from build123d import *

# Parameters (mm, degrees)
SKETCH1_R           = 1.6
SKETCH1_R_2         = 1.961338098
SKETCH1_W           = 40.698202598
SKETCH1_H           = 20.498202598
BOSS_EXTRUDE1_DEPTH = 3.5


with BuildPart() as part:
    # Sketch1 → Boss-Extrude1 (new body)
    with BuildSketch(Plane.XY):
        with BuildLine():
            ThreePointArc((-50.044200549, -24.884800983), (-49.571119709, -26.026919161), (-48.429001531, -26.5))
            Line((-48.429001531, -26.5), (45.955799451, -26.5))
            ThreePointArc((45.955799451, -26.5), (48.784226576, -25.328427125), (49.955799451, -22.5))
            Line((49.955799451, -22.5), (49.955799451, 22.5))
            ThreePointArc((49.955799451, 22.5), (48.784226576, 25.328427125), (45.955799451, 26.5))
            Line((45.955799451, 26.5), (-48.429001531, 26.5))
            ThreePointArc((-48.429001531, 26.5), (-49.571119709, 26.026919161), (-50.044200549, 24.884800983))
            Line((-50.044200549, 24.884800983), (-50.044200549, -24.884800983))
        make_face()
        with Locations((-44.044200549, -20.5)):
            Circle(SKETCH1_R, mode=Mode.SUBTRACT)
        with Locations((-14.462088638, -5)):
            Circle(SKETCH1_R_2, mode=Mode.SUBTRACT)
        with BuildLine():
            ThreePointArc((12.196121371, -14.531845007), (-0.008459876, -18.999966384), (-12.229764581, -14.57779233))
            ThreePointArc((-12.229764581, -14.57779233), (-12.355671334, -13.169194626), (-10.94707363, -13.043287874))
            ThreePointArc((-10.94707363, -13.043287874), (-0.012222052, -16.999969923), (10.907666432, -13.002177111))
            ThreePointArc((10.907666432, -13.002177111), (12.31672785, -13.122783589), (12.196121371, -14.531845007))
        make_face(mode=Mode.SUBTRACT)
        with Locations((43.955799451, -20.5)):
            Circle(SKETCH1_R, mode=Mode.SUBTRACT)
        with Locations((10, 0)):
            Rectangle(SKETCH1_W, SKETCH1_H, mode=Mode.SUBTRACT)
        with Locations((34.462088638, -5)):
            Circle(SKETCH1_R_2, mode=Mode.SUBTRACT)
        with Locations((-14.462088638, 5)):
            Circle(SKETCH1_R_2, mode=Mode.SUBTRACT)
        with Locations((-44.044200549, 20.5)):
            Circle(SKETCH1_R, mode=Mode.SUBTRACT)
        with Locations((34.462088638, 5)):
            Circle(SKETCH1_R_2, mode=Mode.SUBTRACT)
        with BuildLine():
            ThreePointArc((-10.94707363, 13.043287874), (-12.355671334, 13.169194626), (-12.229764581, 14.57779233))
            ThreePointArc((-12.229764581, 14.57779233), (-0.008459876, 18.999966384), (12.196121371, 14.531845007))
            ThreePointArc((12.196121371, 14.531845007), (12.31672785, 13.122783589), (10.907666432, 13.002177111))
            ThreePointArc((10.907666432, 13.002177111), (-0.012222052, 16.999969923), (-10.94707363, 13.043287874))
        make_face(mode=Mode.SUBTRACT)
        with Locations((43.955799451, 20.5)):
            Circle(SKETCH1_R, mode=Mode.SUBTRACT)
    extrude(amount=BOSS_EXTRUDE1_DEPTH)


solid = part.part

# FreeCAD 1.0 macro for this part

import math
import FreeCAD as App
import Part
import Sketcher
Q = App.Units.Quantity

doc = App.newDocument("Part")
params = doc.addObject("Spreadsheet::Sheet", "Params")
for row, (alias, value) in enumerate([
    ("sketch1_radius", "4 mm"),
    ("sketch1_radius2", "1 mm"),
    ("sketch1_radius3", "19 mm"),
    ("sketch1_diameter", "3.2 mm"),
    ("sketch1_height", "45 mm"),
    ("pad1_length", "3.5 mm"),
], start=1):
    params.set(f"A{row}", alias)
    params.set(f"B{row}", "=" + value)
    params.setAlias(f"B{row}", alias)

body = doc.addObject("PartDesign::Body", "Body")

sketch1 = body.newObject("Sketcher::SketchObject", "Sketch")
sketch1.AttachmentSupport = (doc.getObject("XY_Plane"), [""])
sketch1.MapMode = "FlatFace"
sketch1.addGeometry([
    Part.ArcOfCircle(Part.Circle(App.Vector(-48.4, -24.9, 0), App.Vector(0, 0, 1), 1.6), math.radians(-180), math.radians(-90)),
    Part.LineSegment(App.Vector(-48.4, -26.5, 0), App.Vector(46, -26.5, 0)),
    Part.ArcOfCircle(Part.Circle(App.Vector(46, -22.5, 0), App.Vector(0, 0, 1), 4), math.radians(-90), math.radians(0)),
    Part.LineSegment(App.Vector(50, -22.5, 0), App.Vector(50, 22.5, 0)),
    Part.ArcOfCircle(Part.Circle(App.Vector(46, 22.5, 0), App.Vector(0, 0, 1), 4), math.radians(0), math.radians(90)),
    Part.LineSegment(App.Vector(46, 26.5, 0), App.Vector(-48.4, 26.5, 0)),
    Part.ArcOfCircle(Part.Circle(App.Vector(-48.4, 24.9, 0), App.Vector(0, 0, 1), 1.6), math.radians(90), math.radians(180)),
    Part.LineSegment(App.Vector(-50, 24.9, 0), App.Vector(-50, -24.9, 0)),
    Part.Circle(App.Vector(-44, -20.5, 0), App.Vector(0, 0, 1), 1.6),
    Part.Circle(App.Vector(-14.5, -5, 0), App.Vector(0, 0, 1), 2),
    Part.ArcOfCircle(Part.Circle(App.Vector(11.6, -13.8, 0), App.Vector(0, 0, 1), 1), math.radians(-50), math.radians(130)),
    Part.ArcOfCircle(Part.Circle(App.Vector(0, 0, 0), App.Vector(0, 0, 1), 19), math.radians(-130), math.radians(-50)),
    Part.ArcOfCircle(Part.Circle(App.Vector(-11.6, -13.8, 0), App.Vector(0, 0, 1), 1), math.radians(50), math.radians(230)),
    Part.ArcOfCircle(Part.Circle(App.Vector(0, 0, 0), App.Vector(0, 0, 1), 17), math.radians(-130), math.radians(-50)),
    Part.Circle(App.Vector(44, -20.5, 0), App.Vector(0, 0, 1), 1.6),
    Part.Circle(App.Vector(34.5, -5, 0), App.Vector(0, 0, 1), 2),
    Part.Circle(App.Vector(-14.5, 5, 0), App.Vector(0, 0, 1), 2),
    Part.Circle(App.Vector(-44, 20.5, 0), App.Vector(0, 0, 1), 1.6),
    Part.LineSegment(App.Vector(30.3, -10.2, 0), App.Vector(-10.3, -10.2, 0)),
    Part.LineSegment(App.Vector(-10.3, -10.2, 0), App.Vector(-10.3, 10.2, 0)),
    Part.LineSegment(App.Vector(-10.3, 10.2, 0), App.Vector(30.3, 10.2, 0)),
    Part.LineSegment(App.Vector(30.3, 10.2, 0), App.Vector(30.3, -10.2, 0)),
    Part.Circle(App.Vector(34.5, 5, 0), App.Vector(0, 0, 1), 2),
    Part.ArcOfCircle(Part.Circle(App.Vector(0, 0, 0), App.Vector(0, 0, 1), 17), math.radians(50), math.radians(130)),
    Part.ArcOfCircle(Part.Circle(App.Vector(-11.6, 13.8, 0), App.Vector(0, 0, 1), 1), math.radians(130), math.radians(310)),
    Part.ArcOfCircle(Part.Circle(App.Vector(0, 0, 0), App.Vector(0, 0, 1), 19), math.radians(50), math.radians(130)),
    Part.ArcOfCircle(Part.Circle(App.Vector(11.6, 13.8, 0), App.Vector(0, 0, 1), 1), math.radians(-130), math.radians(50)),
    Part.Circle(App.Vector(44, 20.5, 0), App.Vector(0, 0, 1), 1.6),
], False)
sketch1.addConstraint([
    Sketcher.Constraint("Tangent", 0, 2, 1, 1),
    Sketcher.Constraint("Tangent", 1, 2, 2, 1),
    Sketcher.Constraint("Tangent", 2, 2, 3, 1),
    Sketcher.Constraint("Tangent", 3, 2, 4, 1),
    Sketcher.Constraint("Tangent", 4, 2, 5, 1),
    Sketcher.Constraint("Tangent", 5, 2, 6, 1),
    Sketcher.Constraint("Tangent", 6, 2, 7, 1),
    Sketcher.Constraint("Tangent", 7, 2, 0, 1),
    Sketcher.Constraint("Tangent", 10, 1, 11, 2),
    Sketcher.Constraint("Tangent", 11, 1, 12, 2),
    Sketcher.Constraint("Tangent", 12, 1, 13, 1),
    Sketcher.Constraint("Tangent", 13, 2, 10, 2),
    Sketcher.Constraint("Coincident", 18, 2, 19, 1),
    Sketcher.Constraint("Coincident", 19, 2, 20, 1),
    Sketcher.Constraint("Coincident", 20, 2, 21, 1),
    Sketcher.Constraint("Coincident", 21, 2, 18, 1),
    Sketcher.Constraint("Tangent", 23, 2, 24, 2),
    Sketcher.Constraint("Tangent", 24, 1, 25, 2),
    Sketcher.Constraint("Tangent", 25, 1, 26, 2),
    Sketcher.Constraint("Tangent", 26, 1, 23, 1),
    Sketcher.Constraint("Horizontal", 1),
    Sketcher.Constraint("Vertical", 3),
    Sketcher.Constraint("Horizontal", 5),
    Sketcher.Constraint("Vertical", 7),
    Sketcher.Constraint("Horizontal", 18),
    Sketcher.Constraint("Vertical", 19),
    Sketcher.Constraint("Horizontal", 20),
    Sketcher.Constraint("Vertical", 21),
    Sketcher.Constraint("Coincident", 13, 3, 11, 3),
    Sketcher.Constraint("Coincident", 23, 3, 11, 3),
    Sketcher.Constraint("Coincident", 25, 3, 11, 3),
    Sketcher.Constraint("Equal", 2, 4),
    Sketcher.Constraint("Equal", 0, 6),
    Sketcher.Constraint("Equal", 8, 14),
    Sketcher.Constraint("Equal", 9, 15),
    Sketcher.Constraint("Equal", 15, 16),
    Sketcher.Constraint("Equal", 14, 17),
    Sketcher.Constraint("Equal", 16, 22),
    Sketcher.Constraint("Equal", 13, 23),
    Sketcher.Constraint("Equal", 12, 24),
    Sketcher.Constraint("Equal", 17, 27),
    Sketcher.Constraint("Symmetric", 9, 3, 16, 3, -1),
    Sketcher.Constraint("Symmetric", 8, 3, 17, 3, -1),
    Sketcher.Constraint("Symmetric", 15, 3, 22, 3, -1),
    Sketcher.Constraint("Symmetric", 12, 3, 24, 3, -1),
    Sketcher.Constraint("Symmetric", 14, 3, 27, 3, -1),
    Sketcher.Constraint("Horizontal", 8, 3, 14, 3),
    Sketcher.Constraint("Horizontal", 9, 3, 15, 3),
    Sketcher.Constraint("Vertical", 10, 3, 26, 3),
    Sketcher.Constraint("Radius", 2, Q("4 mm")),
    Sketcher.Constraint("Radius", 10, Q("1 mm")),
    Sketcher.Constraint("Radius", 11, Q("19 mm")),
    Sketcher.Constraint("Diameter", 8, Q("3.2 mm")),
    Sketcher.Constraint("DistanceY", 3, 1, 3, 2, Q("45 mm")),
    Sketcher.Constraint("DistanceY", 9, 3, -1, 1, Q("5 mm")),
    Sketcher.Constraint("DistanceX", 8, 3, 2, 3, Q("90 mm")),
    Sketcher.Constraint("DistanceY", 2, 3, 8, 3, Q("2 mm")),
    Sketcher.Constraint("DistanceX", 8, 3, 11, 3, Q("44 mm")),
    Sketcher.Constraint("DistanceX", 14, 3, 2, 3, Q("2 mm")),
    Sketcher.Constraint("DistanceY", 8, 3, 17, 3, Q("41 mm")),
    Sketcher.Constraint("DistanceX", 6, 2, 17, 3, Q("6 mm")),
    Sketcher.Constraint("Radius", 0, Q("1.615199 mm")),
    Sketcher.Constraint("Diameter", 9, Q("3.922676 mm")),
    Sketcher.Constraint("DistanceX", 0, 3, -1, 1, Q("48.429002 mm")),
    Sketcher.Constraint("DistanceX", 18, 2, -1, 1, Q("10.349101 mm")),
    Sketcher.Constraint("DistanceY", 18, 2, -1, 1, Q("10.249101 mm")),
    Sketcher.Constraint("DistanceY", -1, 1, 19, 2, Q("10.249101 mm")),
    Sketcher.Constraint("DistanceX", -1, 1, 20, 2, Q("30.349101 mm")),
    Sketcher.Constraint("DistanceX", 9, 3, -1, 1, Q("14.462089 mm")),
    Sketcher.Constraint("DistanceY", 10, 3, -1, 1, Q("13.767011 mm")),
    Sketcher.Constraint("DistanceX", 12, 3, -1, 1, Q("11.588419 mm")),
    Sketcher.Constraint("DistanceX", -1, 1, 15, 3, Q("34.462089 mm")),
])
sketch1.setExpression("Constraints[49]", "Params.sketch1_radius")
sketch1.setExpression("Constraints[50]", "Params.sketch1_radius2")
sketch1.setExpression("Constraints[51]", "Params.sketch1_radius3")
sketch1.setExpression("Constraints[52]", "Params.sketch1_diameter")
sketch1.setExpression("Constraints[53]", "Params.sketch1_height")
pad1 = body.newObject("PartDesign::Pad", "Pad")
pad1.Profile = sketch1
pad1.setExpression("Length", "Params.pad1_length")

doc.recompute()
